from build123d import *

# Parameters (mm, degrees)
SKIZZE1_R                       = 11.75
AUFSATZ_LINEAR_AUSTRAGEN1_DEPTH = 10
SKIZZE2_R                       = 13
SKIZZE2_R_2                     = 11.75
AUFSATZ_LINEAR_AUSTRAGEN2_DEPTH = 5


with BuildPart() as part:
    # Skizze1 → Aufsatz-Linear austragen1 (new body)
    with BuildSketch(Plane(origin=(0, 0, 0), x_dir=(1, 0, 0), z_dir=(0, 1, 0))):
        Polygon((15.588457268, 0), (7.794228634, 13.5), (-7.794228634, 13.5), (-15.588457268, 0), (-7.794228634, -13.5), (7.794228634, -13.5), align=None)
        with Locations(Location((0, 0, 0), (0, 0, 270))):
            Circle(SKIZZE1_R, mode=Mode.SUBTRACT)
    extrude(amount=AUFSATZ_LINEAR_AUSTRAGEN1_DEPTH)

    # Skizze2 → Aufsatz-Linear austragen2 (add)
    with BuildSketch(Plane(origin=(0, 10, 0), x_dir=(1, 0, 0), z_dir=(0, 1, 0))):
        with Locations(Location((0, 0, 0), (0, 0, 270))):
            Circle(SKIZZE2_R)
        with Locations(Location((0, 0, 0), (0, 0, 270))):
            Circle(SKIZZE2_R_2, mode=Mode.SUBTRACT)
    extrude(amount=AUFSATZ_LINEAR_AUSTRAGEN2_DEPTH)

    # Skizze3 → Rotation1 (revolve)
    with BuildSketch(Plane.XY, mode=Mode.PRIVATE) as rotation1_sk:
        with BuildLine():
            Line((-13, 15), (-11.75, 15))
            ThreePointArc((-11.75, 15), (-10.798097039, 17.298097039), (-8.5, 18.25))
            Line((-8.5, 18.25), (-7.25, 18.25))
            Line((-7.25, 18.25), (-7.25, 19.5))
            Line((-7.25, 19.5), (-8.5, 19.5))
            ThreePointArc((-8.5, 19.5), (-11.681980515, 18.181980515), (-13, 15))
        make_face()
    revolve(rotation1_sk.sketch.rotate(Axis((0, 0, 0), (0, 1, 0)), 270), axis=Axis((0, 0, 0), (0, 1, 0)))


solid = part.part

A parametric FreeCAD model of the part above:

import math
import FreeCAD as App
import Part
import Sketcher
from FreeCAD import Vector
Q = App.Units.Quantity


def add_polygon(sketch, points):
    """Adds a closed chain of lines whose ends are joined by coincident constraints."""
    first, n = sketch.GeometryCount, len(points)
    for a, b in zip(points, points[1:] + points[:1]):
        sketch.addGeometry(Part.LineSegment(App.Vector(*a, 0), App.Vector(*b, 0)), False)
    for i in range(n):
        sketch.addConstraint(Sketcher.Constraint("Coincident", first + i, 2, first + (i + 1) % n, 1))

doc = App.newDocument("Part")
body = doc.addObject("PartDesign::Body", "Body")

sketch1 = body.newObject("Sketcher::SketchObject", "Sketch")
sketch1.AttachmentSupport = (doc.getObject("XZ_Plane"), [""])
sketch1.MapMode = "FlatFace"
add_polygon(sketch1, [(16, 0), (8, -14), (-8, -14), (-16, 0), (-8, 14), (8, 14)])
sketch1.addGeometry(Part.Circle(Vector(0, 0, 0), Vector(0, 0, 1), 12), False)
sketch1.addConstraint(Sketcher.Constraint("Horizontal", 1))
sketch1.addConstraint(Sketcher.Constraint("Horizontal", 4))
sketch1.addConstraint(Sketcher.Constraint("Coincident", 6, 3, -1, 1))
sketch1.addConstraint(Sketcher.Constraint("Symmetric", 0, 2, 3, 2, -1, 1))
sketch1.addConstraint(Sketcher.Constraint("Symmetric", 2, 2, 5, 2, -1, 1))
sketch1.addConstraint(Sketcher.Constraint("PointOnObject", 2, 2, -1))
sketch1.addConstraint(Sketcher.Constraint("Parallel", 2, 5))
sketch1.addConstraint(Sketcher.Constraint("Vertical", 1, 2, 3, 2))
sketch1.addConstraint(Sketcher.Constraint("Diameter", 6, 23.5))
sketch1.addConstraint(Sketcher.Constraint("Angle", 0, Q("-120 deg")))
sketch1.addConstraint(Sketcher.Constraint("DistanceY", 1, 2, 3, 2, 27.0))
sketch1.addConstraint(Sketcher.Constraint("DistanceX", 1, 2, 1, 1, 15.588457))
pad1 = body.newObject("PartDesign::Pad", "Pad")
pad1.Profile = sketch1
pad1.Length = 10
pad1.Reversed = True

sketch2 = body.newObject("Sketcher::SketchObject", "Sketch001")
sketch2.AttachmentSupport = (doc.getObject("XZ_Plane"), [""])
sketch2.MapMode = "FlatFace"
sketch2.AttachmentOffset = App.Placement(Vector(0, 0, -10), App.Rotation())
sketch2.addGeometry(Part.Circle(Vector(0, 0, 0), Vector(0, 0, 1), 13), False)
sketch2.addGeometry(Part.Circle(Vector(0, 0, 0), Vector(0, 0, 1), 12), False)
sketch2.addConstraint(Sketcher.Constraint("Coincident", 0, 3, -1, 1))
sketch2.addConstraint(Sketcher.Constraint("Coincident", 1, 3, -1, 1))
sketch2.addConstraint(Sketcher.Constraint("Diameter", 0, 26.0))
sketch2.addConstraint(Sketcher.Constraint("Diameter", 1, 23.5))
pad2 = body.newObject("PartDesign::Pad", "Pad001")
pad2.Profile = sketch2
pad2.Length = 5
pad2.Reversed = True

sketch3 = body.newObject("Sketcher::SketchObject", "Sketch002")
sketch3.AttachmentSupport = (doc.getObject("XY_Plane"), [""])
sketch3.MapMode = "FlatFace"
sketch3.addGeometry(Part.LineSegment(Vector(-13, 15, 0), Vector(-11.8, 15, 0)), False)
sketch3.addGeometry(Part.ArcOfCircle(Part.Circle(Vector(-8.5, 15, 0), Vector(0, 0, 1), 3.2), math.radians(90), math.radians(180)), False)
sketch3.addGeometry(Part.LineSegment(Vector(-8.5, 18.2, 0), Vector(-7.2, 18.2, 0)), False)
sketch3.addGeometry(Part.LineSegment(Vector(-7.2, 18.2, 0), Vector(-7.2, 19.5, 0)), False)
sketch3.addGeometry(Part.LineSegment(Vector(-7.2, 19.5, 0), Vector(-8.5, 19.5, 0)), False)
sketch3.addGeometry(Part.ArcOfCircle(Part.Circle(Vector(-8.5, 15, 0), Vector(0, 0, 1), 4.5), math.radians(90), math.radians(180)), False)
sketch3.addConstraint(Sketcher.Constraint("Coincident", 0, 2, 1, 2))
sketch3.addConstraint(Sketcher.Constraint("Tangent", 1, 1, 2, 1))
sketch3.addConstraint(Sketcher.Constraint("Coincident", 2, 2, 3, 1))
sketch3.addConstraint(Sketcher.Constraint("Coincident", 3, 2, 4, 1))
sketch3.addConstraint(Sketcher.Constraint("Tangent", 4, 2, 5, 1))
sketch3.addConstraint(Sketcher.Constraint("Coincident", 5, 2, 0, 1))
sketch3.addConstraint(Sketcher.Constraint("Horizontal", 0))
sketch3.addConstraint(Sketcher.Constraint("Horizontal", 2))
sketch3.addConstraint(Sketcher.Constraint("Vertical", 3))
sketch3.addConstraint(Sketcher.Constraint("Horizontal", 4))
sketch3.addConstraint(Sketcher.Constraint("Coincident", 5, 3, 1, 3))
sketch3.addConstraint(Sketcher.Constraint("Horizontal", 5, 3, 0, 2))
sketch3.addConstraint(Sketcher.Constraint("Equal", 0, 2))
sketch3.addConstraint(Sketcher.Constraint("Radius", 5, 4.5))
sketch3.addConstraint(Sketcher.Constraint("Radius", 1, 3.25))
sketch3.addConstraint(Sketcher.Constraint("DistanceY", -1, 1, 1, 3, 15.0))
sketch3.addConstraint(Sketcher.Constraint("DistanceX", 5, 2, -1, 1, 13.0))
revolution = body.newObject("PartDesign::Revolution", "Revolution")
revolution.Profile = sketch3
revolution.ReferenceAxis = (sketch3, ["V_Axis"])
revolution.Angle = 360

doc.recompute()
